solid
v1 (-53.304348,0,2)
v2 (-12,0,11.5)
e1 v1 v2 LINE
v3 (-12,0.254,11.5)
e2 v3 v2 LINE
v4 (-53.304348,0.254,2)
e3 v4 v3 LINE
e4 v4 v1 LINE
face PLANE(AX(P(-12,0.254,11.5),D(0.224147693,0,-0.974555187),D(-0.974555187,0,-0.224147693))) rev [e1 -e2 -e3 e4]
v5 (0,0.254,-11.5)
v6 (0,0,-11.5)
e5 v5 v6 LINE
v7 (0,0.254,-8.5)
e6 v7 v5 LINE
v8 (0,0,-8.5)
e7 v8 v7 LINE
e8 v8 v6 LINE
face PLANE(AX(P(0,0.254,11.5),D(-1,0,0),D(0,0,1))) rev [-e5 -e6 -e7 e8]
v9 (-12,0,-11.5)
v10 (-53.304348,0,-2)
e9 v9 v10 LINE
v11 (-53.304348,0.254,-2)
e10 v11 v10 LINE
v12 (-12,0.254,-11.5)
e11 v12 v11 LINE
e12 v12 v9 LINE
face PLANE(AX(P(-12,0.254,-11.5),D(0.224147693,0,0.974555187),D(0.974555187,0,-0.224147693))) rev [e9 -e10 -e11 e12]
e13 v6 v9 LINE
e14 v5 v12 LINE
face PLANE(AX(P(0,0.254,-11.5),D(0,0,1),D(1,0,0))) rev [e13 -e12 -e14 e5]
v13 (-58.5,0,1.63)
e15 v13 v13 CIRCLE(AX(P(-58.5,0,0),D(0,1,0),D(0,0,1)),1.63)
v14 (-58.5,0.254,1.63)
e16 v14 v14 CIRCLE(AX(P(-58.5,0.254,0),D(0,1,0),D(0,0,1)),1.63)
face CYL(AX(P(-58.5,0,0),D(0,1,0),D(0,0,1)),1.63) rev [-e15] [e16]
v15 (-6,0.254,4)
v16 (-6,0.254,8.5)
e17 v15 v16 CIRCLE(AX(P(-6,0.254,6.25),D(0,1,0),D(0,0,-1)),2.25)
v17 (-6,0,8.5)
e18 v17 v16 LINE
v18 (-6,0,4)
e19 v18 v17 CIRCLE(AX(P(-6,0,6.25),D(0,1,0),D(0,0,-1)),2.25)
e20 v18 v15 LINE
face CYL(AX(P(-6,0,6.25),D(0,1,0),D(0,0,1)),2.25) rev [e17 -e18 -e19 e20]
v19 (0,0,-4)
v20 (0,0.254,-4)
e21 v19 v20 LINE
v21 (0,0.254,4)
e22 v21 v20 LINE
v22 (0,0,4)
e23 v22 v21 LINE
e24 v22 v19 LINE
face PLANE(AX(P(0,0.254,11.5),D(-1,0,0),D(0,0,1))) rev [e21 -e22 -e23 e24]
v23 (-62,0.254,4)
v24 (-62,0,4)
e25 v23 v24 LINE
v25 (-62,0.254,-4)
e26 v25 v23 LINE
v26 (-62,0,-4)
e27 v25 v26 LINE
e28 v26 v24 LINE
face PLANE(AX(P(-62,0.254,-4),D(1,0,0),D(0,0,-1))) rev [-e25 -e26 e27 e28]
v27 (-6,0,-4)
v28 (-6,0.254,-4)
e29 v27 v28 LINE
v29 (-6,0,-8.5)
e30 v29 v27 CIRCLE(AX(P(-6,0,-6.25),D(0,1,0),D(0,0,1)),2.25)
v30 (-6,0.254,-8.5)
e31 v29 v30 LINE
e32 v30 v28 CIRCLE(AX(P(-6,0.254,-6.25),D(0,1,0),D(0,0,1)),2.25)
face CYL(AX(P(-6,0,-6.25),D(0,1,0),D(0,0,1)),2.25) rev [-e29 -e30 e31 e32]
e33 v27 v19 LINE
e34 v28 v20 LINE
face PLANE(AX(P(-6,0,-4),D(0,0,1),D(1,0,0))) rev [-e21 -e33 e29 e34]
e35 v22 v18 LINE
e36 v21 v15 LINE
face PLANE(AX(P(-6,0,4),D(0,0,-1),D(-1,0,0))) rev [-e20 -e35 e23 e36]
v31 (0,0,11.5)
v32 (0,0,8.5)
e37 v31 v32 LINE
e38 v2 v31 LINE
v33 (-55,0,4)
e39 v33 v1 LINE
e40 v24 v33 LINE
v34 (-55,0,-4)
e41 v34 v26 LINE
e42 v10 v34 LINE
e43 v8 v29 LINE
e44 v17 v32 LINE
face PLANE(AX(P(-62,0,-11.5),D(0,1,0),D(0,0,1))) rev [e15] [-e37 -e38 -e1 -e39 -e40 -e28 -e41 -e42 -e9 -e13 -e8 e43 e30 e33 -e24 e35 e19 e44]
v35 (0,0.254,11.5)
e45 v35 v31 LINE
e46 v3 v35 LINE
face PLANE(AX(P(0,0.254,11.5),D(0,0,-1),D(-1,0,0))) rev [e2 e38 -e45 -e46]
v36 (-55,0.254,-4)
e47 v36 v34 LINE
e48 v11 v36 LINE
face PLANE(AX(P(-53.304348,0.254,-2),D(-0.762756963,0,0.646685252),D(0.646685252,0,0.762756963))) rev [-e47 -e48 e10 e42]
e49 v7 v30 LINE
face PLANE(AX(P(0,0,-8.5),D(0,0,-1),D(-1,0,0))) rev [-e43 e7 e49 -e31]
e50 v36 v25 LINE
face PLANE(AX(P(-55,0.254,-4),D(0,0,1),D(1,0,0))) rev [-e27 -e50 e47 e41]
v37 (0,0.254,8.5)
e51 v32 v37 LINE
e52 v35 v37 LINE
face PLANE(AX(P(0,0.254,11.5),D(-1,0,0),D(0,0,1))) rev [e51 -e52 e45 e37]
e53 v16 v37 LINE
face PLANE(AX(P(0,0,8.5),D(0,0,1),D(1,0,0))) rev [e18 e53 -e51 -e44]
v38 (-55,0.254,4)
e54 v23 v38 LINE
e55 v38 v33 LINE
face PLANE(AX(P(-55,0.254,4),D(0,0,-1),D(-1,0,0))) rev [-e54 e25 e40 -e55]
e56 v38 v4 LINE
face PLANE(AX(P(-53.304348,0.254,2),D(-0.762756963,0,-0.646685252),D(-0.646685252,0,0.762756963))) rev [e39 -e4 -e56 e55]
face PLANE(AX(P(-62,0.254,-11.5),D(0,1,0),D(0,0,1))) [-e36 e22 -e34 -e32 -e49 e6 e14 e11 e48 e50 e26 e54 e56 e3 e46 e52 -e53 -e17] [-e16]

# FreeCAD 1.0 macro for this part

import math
import FreeCAD as App
import Part
import Sketcher
Q = App.Units.Quantity


def add_polygon(sketch, points):
    """Adds a closed chain of lines whose ends are joined by coincident constraints."""
    first, n = sketch.GeometryCount, len(points)
    for a, b in zip(points, points[1:] + points[:1]):
        sketch.addGeometry(Part.LineSegment(App.Vector(*a, 0), App.Vector(*b, 0)), False)
    for i in range(n):
        sketch.addConstraint(Sketcher.Constraint("Coincident", first + i, 2, first + (i + 1) % n, 1))

doc = App.newDocument("Part")
body = doc.addObject("PartDesign::Body", "Body")

sketch1 = body.newObject("Sketcher::SketchObject", "Sketch")
sketch1.AttachmentSupport = (doc.getObject("XZ_Plane"), [""])
sketch1.MapMode = "FlatFace"
add_polygon(sketch1, [(0, 11.5), (0, -11.5), (-12, -11.5), (-53.3, -2), (-55, -4), (-62, -4), (-62, 4), (-55, 4), (-53.3, 2), (-12, 11.5)])
sketch1.addConstraint([
    Sketcher.Constraint("Vertical", 0),
    Sketcher.Constraint("Horizontal", 1),
    Sketcher.Constraint("Horizontal", 4),
    Sketcher.Constraint("Vertical", 5),
    Sketcher.Constraint("Horizontal", 6),
    Sketcher.Constraint("Horizontal", 9),
    Sketcher.Constraint("Symmetric", 0, 2, 9, 2, -1, 1),
    Sketcher.Constraint("Symmetric", 3, 2, 6, 2, -1),
    Sketcher.Constraint("Symmetric", 2, 2, 7, 2, -1),
    Sketcher.Constraint("Vertical", 1, 2, 8, 2),
    Sketcher.Constraint("DistanceX", 1, 2, 1, 1, Q("12 mm")),
    Sketcher.Constraint("DistanceX", 4, 2, 4, 1, Q("7 mm")),
    Sketcher.Constraint("DistanceY", 0, 2, 0, 1, Q("23 mm")),
    Sketcher.Constraint("DistanceY", 5, 1, 5, 2, Q("8 mm")),
    Sketcher.Constraint("DistanceY", 2, 2, -1, 1, Q("2 mm")),
    Sketcher.Constraint("DistanceX", 3, 2, -1, 1, Q("55 mm")),
    Sketcher.Constraint("Distance", 2, Q("42.382769 mm")),
])
pad1 = body.newObject("PartDesign::Pad", "Pad")
pad1.Profile = sketch1
pad1.Length = 0.254
pad1.Reversed = True

sketch2 = body.newObject("Sketcher::SketchObject", "Sketch001")
sketch2.AttachmentSupport = (doc.getObject("XZ_Plane"), [""])
sketch2.MapMode = "FlatFace"
sketch2.AttachmentOffset = App.Placement(App.Vector(0, 0, -0.254), App.Rotation())
sketch2.addGeometry([
    Part.LineSegment(App.Vector(-6, -4, 0), App.Vector(0, -4, 0)),
    Part.LineSegment(App.Vector(0, -4, 0), App.Vector(0, -8.5, 0)),
    Part.LineSegment(App.Vector(0, -8.5, 0), App.Vector(-6, -8.5, 0)),
    Part.ArcOfCircle(Part.Circle(App.Vector(-6, -6.2, 0), App.Vector(0, 0, 1), 2.2), math.radians(90), math.radians(270)),
    Part.LineSegment(App.Vector(-6, 8.5, 0), App.Vector(0, 8.5, 0)),
    Part.LineSegment(App.Vector(0, 8.5, 0), App.Vector(0, 4, 0)),
    Part.LineSegment(App.Vector(0, 4, 0), App.Vector(-6, 4, 0)),
    Part.ArcOfCircle(Part.Circle(App.Vector(-6, 6.2, 0), App.Vector(0, 0, 1), 2.2), math.radians(90), math.radians(270)),
], False)
sketch2.addConstraint([
    Sketcher.Constraint("Coincident", 0, 2, 1, 1),
    Sketcher.Constraint("Coincident", 1, 2, 2, 1),
    Sketcher.Constraint("Tangent", 2, 2, 3, 2),
    Sketcher.Constraint("Tangent", 3, 1, 0, 1),
    Sketcher.Constraint("Coincident", 4, 2, 5, 1),
    Sketcher.Constraint("Coincident", 5, 2, 6, 1),
    Sketcher.Constraint("Tangent", 6, 2, 7, 2),
    Sketcher.Constraint("Tangent", 7, 1, 4, 1),
    Sketcher.Constraint("Horizontal", 0),
    Sketcher.Constraint("Vertical", 1),
    Sketcher.Constraint("Horizontal", 2),
    Sketcher.Constraint("Horizontal", 4),
    Sketcher.Constraint("Vertical", 5),
    Sketcher.Constraint("Horizontal", 6),
    Sketcher.Constraint("Equal", 3, 7),
    Sketcher.Constraint("Symmetric", 1, 2, 4, 2, -1, 1),
    Sketcher.Constraint("PointOnObject", 0, 2, -2),
    Sketcher.Constraint("Vertical", 3, 3, 7, 3),
    Sketcher.Constraint("DistanceX", 0, 1, 0, 2, Q("6 mm")),
    Sketcher.Constraint("Radius", 3, Q("2.25 mm")),
    Sketcher.Constraint("DistanceY", 0, 2, -1, 1, Q("4 mm")),
])
pocket1 = body.newObject("PartDesign::Pocket", "Pocket")
pocket1.Profile = sketch2
pocket1.Type = "ThroughAll"
pocket1.Reversed = True

sketch3 = body.newObject("Sketcher::SketchObject", "Sketch002")
sketch3.AttachmentSupport = (doc.getObject("XZ_Plane"), [""])
sketch3.MapMode = "FlatFace"
sketch3.AttachmentOffset = App.Placement(App.Vector(0, 0, -0.254), App.Rotation())
sketch3.addGeometry(Part.Circle(App.Vector(-58.5, 0, 0), App.Vector(0, 0, 1), 1.6), False)
sketch3.addConstraint([
    Sketcher.Constraint("PointOnObject", 0, 3, -1),
    Sketcher.Constraint("Diameter", 0, Q("3.26 mm")),
    Sketcher.Constraint("DistanceX", 0, 3, -1, 1, Q("58.5 mm")),
])
pocket2 = body.newObject("PartDesign::Pocket", "Pocket001")
pocket2.Profile = sketch3
pocket2.Type = "ThroughAll"
pocket2.Reversed = True

doc.recompute()
